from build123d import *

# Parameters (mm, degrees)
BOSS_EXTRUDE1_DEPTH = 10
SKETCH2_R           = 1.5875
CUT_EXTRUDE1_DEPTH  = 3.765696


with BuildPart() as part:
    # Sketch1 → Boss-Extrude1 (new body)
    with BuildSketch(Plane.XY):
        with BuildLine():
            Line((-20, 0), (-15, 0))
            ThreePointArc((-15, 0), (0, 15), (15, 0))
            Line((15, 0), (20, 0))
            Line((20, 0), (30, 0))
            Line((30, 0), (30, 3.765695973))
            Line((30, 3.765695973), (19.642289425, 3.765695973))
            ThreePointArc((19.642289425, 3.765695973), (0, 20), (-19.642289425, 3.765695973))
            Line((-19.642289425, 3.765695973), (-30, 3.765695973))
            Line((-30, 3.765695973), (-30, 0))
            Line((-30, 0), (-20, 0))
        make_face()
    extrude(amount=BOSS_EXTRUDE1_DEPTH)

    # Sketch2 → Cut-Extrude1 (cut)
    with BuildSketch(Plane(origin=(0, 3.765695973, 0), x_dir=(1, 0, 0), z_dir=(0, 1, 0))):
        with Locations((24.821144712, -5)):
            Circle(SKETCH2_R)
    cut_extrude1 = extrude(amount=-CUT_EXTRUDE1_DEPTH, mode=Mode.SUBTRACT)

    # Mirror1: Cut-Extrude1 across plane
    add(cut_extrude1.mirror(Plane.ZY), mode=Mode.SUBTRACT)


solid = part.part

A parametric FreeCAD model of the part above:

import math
import FreeCAD as App
import Part
import Sketcher

doc = App.newDocument("Part")
body = doc.addObject("PartDesign::Body", "Body")

# Sketch on XY plane
sketch1 = doc.addObject("Sketcher::SketchObject", "Sketch")
body.addObject(sketch1)
sketch1.AttachmentSupport = (doc.XY_Plane, [""])
sketch1.MapMode = "FlatFace"
sketch1.addGeometry([
    Part.ArcOfCircle(Part.Circle(App.Vector(0, 0, 0), App.Vector(0, 0, 1), 15), math.radians(0), math.radians(180)),  # 0
    Part.LineSegment(App.Vector(15, 0, 0), App.Vector(30, 0, 0)),  # 1
    Part.LineSegment(App.Vector(30, 0, 0), App.Vector(30, 3.8, 0)),  # 2
    Part.LineSegment(App.Vector(30, 3.8, 0), App.Vector(19.6, 3.8, 0)),  # 3
    Part.ArcOfCircle(Part.Circle(App.Vector(0, 0, 0), App.Vector(0, 0, 1), 20), math.radians(11), math.radians(169)),  # 4
    Part.LineSegment(App.Vector(-19.6, 3.8, 0), App.Vector(-30, 3.8, 0)),  # 5
    Part.LineSegment(App.Vector(-30, 3.8, 0), App.Vector(-30, 0, 0)),  # 6
    Part.LineSegment(App.Vector(-30, 0, 0), App.Vector(-15, 0, 0)),  # 7
], False)
sketch1.addConstraint([
    Sketcher.Constraint("Coincident", 0, 1, 1, 1),
    Sketcher.Constraint("Coincident", 1, 2, 2, 1),
    Sketcher.Constraint("Coincident", 2, 2, 3, 1),
    Sketcher.Constraint("Coincident", 3, 2, 4, 1),
    Sketcher.Constraint("Coincident", 4, 2, 5, 1),
    Sketcher.Constraint("Coincident", 5, 2, 6, 1),
    Sketcher.Constraint("Coincident", 6, 2, 7, 1),
    Sketcher.Constraint("Coincident", 7, 2, 0, 2),
    Sketcher.Constraint("Horizontal", 1),
    Sketcher.Constraint("Vertical", 2),
    Sketcher.Constraint("Horizontal", 3),
    Sketcher.Constraint("Horizontal", 5),
    Sketcher.Constraint("Vertical", 6),
    Sketcher.Constraint("Horizontal", 7),
    Sketcher.Constraint("Coincident", 0, 3, -1, 1),
    Sketcher.Constraint("Coincident", 4, 3, -1, 1),
    Sketcher.Constraint("Symmetric", 1, 2, 6, 2, -1, 1),
    Sketcher.Constraint("PointOnObject", 0, 1, -1),
    Sketcher.Constraint("Horizontal", 3, 2, 4, 2),
    Sketcher.Constraint("Radius", 0, 15.0),
    Sketcher.Constraint("Radius", 4, 20.0),
    Sketcher.Constraint("DistanceX", 1, 1, 1, 2, 15.0),
    Sketcher.Constraint("DistanceX", 3, 2, 3, 1, 10.357711),
])
pad1 = doc.addObject("PartDesign::Pad", "Pad")
body.addObject(pad1)
pad1.Profile = sketch1
pad1.Length = 10

# Sketch on XZ plane
sketch2 = doc.addObject("Sketcher::SketchObject", "Sketch001")
body.addObject(sketch2)
sketch2.AttachmentSupport = (doc.XZ_Plane, [""])
sketch2.MapMode = "FlatFace"
sketch2.AttachmentOffset = App.Placement(App.Vector(0, 0, -3.765696), App.Rotation())
sketch2.addGeometry(Part.Circle(App.Vector(24.8, 5, 0), App.Vector(0, 0, 1), 1.6), False)
sketch2.addConstraint([
    Sketcher.Constraint("Diameter", 0, 3.175),
    Sketcher.Constraint("DistanceY", -1, 1, 0, 3, 5.0),
    Sketcher.Constraint("DistanceX", -1, 1, 0, 3, 24.821145),
])
pocket1 = doc.addObject("PartDesign::Pocket", "Pocket")
body.addObject(pocket1)
pocket1.Profile = sketch2
pocket1.Length = 3.765696
pocket1.Reversed = True
doc.recompute()

mirrored = doc.addObject("PartDesign::Mirrored", "Mirrored")
body.addObject(mirrored)
mirrored.Originals = [pocket1]
mirrored.MirrorPlane = (doc.YZ_Plane, [""])
body.Tip = mirrored

doc.recompute()
